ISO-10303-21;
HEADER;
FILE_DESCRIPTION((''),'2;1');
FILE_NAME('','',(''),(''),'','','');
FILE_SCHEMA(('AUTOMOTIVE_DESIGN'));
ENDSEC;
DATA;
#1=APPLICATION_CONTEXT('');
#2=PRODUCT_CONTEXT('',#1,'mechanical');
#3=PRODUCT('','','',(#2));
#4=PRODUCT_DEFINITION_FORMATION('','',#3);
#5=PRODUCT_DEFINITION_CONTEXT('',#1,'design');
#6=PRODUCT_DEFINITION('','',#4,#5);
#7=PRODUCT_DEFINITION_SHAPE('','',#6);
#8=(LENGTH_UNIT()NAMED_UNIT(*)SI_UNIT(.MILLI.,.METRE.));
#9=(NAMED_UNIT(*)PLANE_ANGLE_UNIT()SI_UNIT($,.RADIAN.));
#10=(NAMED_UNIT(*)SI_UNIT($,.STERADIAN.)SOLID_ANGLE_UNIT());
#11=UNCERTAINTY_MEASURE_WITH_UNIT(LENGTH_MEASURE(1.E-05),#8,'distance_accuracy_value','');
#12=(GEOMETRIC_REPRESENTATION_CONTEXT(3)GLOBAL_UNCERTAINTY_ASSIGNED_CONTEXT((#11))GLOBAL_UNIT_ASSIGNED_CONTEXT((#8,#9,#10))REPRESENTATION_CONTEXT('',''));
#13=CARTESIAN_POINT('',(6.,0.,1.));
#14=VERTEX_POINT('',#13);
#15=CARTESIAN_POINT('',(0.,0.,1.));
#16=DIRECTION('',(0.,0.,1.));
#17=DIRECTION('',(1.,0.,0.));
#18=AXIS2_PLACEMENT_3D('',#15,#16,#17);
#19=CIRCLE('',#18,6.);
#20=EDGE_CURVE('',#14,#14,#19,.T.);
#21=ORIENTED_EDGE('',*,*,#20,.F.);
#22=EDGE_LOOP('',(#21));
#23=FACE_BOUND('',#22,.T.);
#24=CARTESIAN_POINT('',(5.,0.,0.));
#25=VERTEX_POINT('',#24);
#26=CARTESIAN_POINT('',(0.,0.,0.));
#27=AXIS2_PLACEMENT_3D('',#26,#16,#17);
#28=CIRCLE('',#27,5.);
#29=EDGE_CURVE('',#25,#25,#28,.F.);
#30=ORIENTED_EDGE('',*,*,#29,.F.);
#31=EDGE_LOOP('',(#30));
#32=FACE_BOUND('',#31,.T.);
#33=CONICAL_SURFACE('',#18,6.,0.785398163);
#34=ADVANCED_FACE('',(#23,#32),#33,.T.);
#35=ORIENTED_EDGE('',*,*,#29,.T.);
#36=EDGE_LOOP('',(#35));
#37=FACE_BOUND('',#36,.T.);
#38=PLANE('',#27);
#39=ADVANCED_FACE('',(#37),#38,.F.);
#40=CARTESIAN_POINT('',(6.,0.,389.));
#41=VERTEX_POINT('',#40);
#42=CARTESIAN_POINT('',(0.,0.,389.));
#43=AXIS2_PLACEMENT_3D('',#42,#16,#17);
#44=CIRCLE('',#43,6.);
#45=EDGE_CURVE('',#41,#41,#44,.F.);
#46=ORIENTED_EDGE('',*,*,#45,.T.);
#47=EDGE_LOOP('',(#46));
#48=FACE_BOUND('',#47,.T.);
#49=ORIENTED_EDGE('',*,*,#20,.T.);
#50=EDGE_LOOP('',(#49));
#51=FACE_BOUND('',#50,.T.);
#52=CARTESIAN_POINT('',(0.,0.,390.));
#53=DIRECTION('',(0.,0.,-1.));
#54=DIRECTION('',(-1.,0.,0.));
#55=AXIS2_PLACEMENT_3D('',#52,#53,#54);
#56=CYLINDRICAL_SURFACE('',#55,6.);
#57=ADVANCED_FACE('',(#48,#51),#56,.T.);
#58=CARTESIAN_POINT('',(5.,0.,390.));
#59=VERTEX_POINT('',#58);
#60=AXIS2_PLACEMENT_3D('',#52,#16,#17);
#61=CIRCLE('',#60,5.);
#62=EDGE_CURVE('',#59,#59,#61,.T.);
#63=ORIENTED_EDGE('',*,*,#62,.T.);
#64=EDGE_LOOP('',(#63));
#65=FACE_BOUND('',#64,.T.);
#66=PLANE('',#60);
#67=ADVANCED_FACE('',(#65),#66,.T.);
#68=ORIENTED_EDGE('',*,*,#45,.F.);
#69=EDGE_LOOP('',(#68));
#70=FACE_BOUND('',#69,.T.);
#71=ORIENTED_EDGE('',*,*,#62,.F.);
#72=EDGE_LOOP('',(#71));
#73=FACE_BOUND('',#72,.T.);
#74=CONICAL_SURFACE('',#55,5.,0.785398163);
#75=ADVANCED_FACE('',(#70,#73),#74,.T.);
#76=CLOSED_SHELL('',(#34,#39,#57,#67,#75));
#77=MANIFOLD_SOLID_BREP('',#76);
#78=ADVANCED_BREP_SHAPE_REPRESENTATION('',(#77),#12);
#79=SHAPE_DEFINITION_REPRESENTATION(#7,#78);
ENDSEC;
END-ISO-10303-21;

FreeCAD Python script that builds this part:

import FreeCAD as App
import Part
import Sketcher

V = App.Vector
Q = App.Units.Quantity


def edges_at(feature, points):
    """Names of the edges that pass closest to the given points."""
    edges = feature.Shape.Edges
    near = lambda p: min(range(len(edges)), key=lambda i: edges[i].distToShape(Part.Vertex(*p))[0])
    return sorted({f"Edge{near(p) + 1}" for p in points})

doc = App.newDocument("Part")
body = doc.addObject("PartDesign::Body", "Body")

# Sketch on XY plane
sketch1 = body.newObject("Sketcher::SketchObject", "Sketch")
sketch1.AttachmentSupport = (doc.getObject("XY_Plane"), [""])
sketch1.MapMode = "FlatFace"
sketch1.addGeometry(Part.Circle(V(0, 0, 0), V(0, 0, 1), 6), False)
sketch1.addConstraint([
    Sketcher.Constraint("Coincident", 0, 3, -1, 1),
    Sketcher.Constraint("Diameter", 0, Q("12 mm")),
])
pad1 = body.newObject("PartDesign::Pad", "Pad")
pad1.Profile = sketch1
pad1.Length = 390
doc.recompute()

chamfer = body.newObject("PartDesign::Chamfer", "Chamfer")
chamfer.Base = (pad1, edges_at(pad1, [(-6, 0, 0), (-6, 0, 390)]))
chamfer.Size = 1

doc.recompute()
